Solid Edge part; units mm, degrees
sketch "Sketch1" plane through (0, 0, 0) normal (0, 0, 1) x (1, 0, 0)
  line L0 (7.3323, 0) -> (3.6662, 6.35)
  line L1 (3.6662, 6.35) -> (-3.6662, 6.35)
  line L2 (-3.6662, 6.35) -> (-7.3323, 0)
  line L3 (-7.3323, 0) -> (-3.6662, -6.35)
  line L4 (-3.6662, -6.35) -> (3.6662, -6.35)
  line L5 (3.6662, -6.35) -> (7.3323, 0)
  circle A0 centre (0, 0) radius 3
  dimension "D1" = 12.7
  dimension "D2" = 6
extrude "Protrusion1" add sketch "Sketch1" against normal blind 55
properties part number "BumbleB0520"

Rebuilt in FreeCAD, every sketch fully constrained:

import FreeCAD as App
import Part
import Sketcher

V = App.Vector
Q = App.Units.Quantity

doc = App.newDocument("Part")
body = doc.addObject("PartDesign::Body", "Body")

sketch1 = body.newObject("Sketcher::SketchObject", "Sketch")
sketch1.AttachmentSupport = (doc.getObject("XY_Plane"), [""])
sketch1.MapMode = "FlatFace"
sketch1.addGeometry([
    Part.LineSegment(V(3.6662, -6.35, 0), V(7.3323, 0, 0)),
    Part.LineSegment(V(7.3323, 0, 0), V(3.6662, 6.35, 0)),
    Part.LineSegment(V(3.6662, 6.35, 0), V(-3.6662, 6.35, 0)),
    Part.LineSegment(V(-3.6662, 6.35, 0), V(-7.3323, 0, 0)),
    Part.LineSegment(V(-7.3323, 0, 0), V(-3.6662, -6.35, 0)),
    Part.LineSegment(V(-3.6662, -6.35, 0), V(3.6662, -6.35, 0)),
    Part.Circle(V(0, 0, 0), V(0, 0, 1), 3),
], False)
sketch1.addConstraint([
    Sketcher.Constraint("Coincident", 0, 2, 1, 1),
    Sketcher.Constraint("Coincident", 1, 2, 2, 1),
    Sketcher.Constraint("Coincident", 2, 2, 3, 1),
    Sketcher.Constraint("Coincident", 3, 2, 4, 1),
    Sketcher.Constraint("Coincident", 4, 2, 5, 1),
    Sketcher.Constraint("Coincident", 5, 2, 0, 1),
    Sketcher.Constraint("Horizontal", 2),
    Sketcher.Constraint("Horizontal", 5),
    Sketcher.Constraint("Coincident", 6, 3, -1, 1),
    Sketcher.Constraint("Symmetric", 0, 2, 3, 2, -1, 1),
    Sketcher.Constraint("Symmetric", 1, 2, 4, 2, -1, 1),
    Sketcher.Constraint("PointOnObject", 0, 2, -1),
    Sketcher.Constraint("Parallel", 0, 3),
    Sketcher.Constraint("Vertical", 2, 2, 4, 2),
    Sketcher.Constraint("Diameter", 6, Q("6 mm")),
    Sketcher.Constraint("Angle", 0, Q("60.0005 deg")),
    Sketcher.Constraint("DistanceY", 4, 2, 2, 2, Q("12.7 mm")),
    Sketcher.Constraint("DistanceX", 2, 2, 2, 1, Q("7.3324 mm")),
])
pad1 = body.newObject("PartDesign::Pad", "Pad")
pad1.Profile = sketch1
pad1.Length = 55
pad1.Reversed = True

doc.recompute()
